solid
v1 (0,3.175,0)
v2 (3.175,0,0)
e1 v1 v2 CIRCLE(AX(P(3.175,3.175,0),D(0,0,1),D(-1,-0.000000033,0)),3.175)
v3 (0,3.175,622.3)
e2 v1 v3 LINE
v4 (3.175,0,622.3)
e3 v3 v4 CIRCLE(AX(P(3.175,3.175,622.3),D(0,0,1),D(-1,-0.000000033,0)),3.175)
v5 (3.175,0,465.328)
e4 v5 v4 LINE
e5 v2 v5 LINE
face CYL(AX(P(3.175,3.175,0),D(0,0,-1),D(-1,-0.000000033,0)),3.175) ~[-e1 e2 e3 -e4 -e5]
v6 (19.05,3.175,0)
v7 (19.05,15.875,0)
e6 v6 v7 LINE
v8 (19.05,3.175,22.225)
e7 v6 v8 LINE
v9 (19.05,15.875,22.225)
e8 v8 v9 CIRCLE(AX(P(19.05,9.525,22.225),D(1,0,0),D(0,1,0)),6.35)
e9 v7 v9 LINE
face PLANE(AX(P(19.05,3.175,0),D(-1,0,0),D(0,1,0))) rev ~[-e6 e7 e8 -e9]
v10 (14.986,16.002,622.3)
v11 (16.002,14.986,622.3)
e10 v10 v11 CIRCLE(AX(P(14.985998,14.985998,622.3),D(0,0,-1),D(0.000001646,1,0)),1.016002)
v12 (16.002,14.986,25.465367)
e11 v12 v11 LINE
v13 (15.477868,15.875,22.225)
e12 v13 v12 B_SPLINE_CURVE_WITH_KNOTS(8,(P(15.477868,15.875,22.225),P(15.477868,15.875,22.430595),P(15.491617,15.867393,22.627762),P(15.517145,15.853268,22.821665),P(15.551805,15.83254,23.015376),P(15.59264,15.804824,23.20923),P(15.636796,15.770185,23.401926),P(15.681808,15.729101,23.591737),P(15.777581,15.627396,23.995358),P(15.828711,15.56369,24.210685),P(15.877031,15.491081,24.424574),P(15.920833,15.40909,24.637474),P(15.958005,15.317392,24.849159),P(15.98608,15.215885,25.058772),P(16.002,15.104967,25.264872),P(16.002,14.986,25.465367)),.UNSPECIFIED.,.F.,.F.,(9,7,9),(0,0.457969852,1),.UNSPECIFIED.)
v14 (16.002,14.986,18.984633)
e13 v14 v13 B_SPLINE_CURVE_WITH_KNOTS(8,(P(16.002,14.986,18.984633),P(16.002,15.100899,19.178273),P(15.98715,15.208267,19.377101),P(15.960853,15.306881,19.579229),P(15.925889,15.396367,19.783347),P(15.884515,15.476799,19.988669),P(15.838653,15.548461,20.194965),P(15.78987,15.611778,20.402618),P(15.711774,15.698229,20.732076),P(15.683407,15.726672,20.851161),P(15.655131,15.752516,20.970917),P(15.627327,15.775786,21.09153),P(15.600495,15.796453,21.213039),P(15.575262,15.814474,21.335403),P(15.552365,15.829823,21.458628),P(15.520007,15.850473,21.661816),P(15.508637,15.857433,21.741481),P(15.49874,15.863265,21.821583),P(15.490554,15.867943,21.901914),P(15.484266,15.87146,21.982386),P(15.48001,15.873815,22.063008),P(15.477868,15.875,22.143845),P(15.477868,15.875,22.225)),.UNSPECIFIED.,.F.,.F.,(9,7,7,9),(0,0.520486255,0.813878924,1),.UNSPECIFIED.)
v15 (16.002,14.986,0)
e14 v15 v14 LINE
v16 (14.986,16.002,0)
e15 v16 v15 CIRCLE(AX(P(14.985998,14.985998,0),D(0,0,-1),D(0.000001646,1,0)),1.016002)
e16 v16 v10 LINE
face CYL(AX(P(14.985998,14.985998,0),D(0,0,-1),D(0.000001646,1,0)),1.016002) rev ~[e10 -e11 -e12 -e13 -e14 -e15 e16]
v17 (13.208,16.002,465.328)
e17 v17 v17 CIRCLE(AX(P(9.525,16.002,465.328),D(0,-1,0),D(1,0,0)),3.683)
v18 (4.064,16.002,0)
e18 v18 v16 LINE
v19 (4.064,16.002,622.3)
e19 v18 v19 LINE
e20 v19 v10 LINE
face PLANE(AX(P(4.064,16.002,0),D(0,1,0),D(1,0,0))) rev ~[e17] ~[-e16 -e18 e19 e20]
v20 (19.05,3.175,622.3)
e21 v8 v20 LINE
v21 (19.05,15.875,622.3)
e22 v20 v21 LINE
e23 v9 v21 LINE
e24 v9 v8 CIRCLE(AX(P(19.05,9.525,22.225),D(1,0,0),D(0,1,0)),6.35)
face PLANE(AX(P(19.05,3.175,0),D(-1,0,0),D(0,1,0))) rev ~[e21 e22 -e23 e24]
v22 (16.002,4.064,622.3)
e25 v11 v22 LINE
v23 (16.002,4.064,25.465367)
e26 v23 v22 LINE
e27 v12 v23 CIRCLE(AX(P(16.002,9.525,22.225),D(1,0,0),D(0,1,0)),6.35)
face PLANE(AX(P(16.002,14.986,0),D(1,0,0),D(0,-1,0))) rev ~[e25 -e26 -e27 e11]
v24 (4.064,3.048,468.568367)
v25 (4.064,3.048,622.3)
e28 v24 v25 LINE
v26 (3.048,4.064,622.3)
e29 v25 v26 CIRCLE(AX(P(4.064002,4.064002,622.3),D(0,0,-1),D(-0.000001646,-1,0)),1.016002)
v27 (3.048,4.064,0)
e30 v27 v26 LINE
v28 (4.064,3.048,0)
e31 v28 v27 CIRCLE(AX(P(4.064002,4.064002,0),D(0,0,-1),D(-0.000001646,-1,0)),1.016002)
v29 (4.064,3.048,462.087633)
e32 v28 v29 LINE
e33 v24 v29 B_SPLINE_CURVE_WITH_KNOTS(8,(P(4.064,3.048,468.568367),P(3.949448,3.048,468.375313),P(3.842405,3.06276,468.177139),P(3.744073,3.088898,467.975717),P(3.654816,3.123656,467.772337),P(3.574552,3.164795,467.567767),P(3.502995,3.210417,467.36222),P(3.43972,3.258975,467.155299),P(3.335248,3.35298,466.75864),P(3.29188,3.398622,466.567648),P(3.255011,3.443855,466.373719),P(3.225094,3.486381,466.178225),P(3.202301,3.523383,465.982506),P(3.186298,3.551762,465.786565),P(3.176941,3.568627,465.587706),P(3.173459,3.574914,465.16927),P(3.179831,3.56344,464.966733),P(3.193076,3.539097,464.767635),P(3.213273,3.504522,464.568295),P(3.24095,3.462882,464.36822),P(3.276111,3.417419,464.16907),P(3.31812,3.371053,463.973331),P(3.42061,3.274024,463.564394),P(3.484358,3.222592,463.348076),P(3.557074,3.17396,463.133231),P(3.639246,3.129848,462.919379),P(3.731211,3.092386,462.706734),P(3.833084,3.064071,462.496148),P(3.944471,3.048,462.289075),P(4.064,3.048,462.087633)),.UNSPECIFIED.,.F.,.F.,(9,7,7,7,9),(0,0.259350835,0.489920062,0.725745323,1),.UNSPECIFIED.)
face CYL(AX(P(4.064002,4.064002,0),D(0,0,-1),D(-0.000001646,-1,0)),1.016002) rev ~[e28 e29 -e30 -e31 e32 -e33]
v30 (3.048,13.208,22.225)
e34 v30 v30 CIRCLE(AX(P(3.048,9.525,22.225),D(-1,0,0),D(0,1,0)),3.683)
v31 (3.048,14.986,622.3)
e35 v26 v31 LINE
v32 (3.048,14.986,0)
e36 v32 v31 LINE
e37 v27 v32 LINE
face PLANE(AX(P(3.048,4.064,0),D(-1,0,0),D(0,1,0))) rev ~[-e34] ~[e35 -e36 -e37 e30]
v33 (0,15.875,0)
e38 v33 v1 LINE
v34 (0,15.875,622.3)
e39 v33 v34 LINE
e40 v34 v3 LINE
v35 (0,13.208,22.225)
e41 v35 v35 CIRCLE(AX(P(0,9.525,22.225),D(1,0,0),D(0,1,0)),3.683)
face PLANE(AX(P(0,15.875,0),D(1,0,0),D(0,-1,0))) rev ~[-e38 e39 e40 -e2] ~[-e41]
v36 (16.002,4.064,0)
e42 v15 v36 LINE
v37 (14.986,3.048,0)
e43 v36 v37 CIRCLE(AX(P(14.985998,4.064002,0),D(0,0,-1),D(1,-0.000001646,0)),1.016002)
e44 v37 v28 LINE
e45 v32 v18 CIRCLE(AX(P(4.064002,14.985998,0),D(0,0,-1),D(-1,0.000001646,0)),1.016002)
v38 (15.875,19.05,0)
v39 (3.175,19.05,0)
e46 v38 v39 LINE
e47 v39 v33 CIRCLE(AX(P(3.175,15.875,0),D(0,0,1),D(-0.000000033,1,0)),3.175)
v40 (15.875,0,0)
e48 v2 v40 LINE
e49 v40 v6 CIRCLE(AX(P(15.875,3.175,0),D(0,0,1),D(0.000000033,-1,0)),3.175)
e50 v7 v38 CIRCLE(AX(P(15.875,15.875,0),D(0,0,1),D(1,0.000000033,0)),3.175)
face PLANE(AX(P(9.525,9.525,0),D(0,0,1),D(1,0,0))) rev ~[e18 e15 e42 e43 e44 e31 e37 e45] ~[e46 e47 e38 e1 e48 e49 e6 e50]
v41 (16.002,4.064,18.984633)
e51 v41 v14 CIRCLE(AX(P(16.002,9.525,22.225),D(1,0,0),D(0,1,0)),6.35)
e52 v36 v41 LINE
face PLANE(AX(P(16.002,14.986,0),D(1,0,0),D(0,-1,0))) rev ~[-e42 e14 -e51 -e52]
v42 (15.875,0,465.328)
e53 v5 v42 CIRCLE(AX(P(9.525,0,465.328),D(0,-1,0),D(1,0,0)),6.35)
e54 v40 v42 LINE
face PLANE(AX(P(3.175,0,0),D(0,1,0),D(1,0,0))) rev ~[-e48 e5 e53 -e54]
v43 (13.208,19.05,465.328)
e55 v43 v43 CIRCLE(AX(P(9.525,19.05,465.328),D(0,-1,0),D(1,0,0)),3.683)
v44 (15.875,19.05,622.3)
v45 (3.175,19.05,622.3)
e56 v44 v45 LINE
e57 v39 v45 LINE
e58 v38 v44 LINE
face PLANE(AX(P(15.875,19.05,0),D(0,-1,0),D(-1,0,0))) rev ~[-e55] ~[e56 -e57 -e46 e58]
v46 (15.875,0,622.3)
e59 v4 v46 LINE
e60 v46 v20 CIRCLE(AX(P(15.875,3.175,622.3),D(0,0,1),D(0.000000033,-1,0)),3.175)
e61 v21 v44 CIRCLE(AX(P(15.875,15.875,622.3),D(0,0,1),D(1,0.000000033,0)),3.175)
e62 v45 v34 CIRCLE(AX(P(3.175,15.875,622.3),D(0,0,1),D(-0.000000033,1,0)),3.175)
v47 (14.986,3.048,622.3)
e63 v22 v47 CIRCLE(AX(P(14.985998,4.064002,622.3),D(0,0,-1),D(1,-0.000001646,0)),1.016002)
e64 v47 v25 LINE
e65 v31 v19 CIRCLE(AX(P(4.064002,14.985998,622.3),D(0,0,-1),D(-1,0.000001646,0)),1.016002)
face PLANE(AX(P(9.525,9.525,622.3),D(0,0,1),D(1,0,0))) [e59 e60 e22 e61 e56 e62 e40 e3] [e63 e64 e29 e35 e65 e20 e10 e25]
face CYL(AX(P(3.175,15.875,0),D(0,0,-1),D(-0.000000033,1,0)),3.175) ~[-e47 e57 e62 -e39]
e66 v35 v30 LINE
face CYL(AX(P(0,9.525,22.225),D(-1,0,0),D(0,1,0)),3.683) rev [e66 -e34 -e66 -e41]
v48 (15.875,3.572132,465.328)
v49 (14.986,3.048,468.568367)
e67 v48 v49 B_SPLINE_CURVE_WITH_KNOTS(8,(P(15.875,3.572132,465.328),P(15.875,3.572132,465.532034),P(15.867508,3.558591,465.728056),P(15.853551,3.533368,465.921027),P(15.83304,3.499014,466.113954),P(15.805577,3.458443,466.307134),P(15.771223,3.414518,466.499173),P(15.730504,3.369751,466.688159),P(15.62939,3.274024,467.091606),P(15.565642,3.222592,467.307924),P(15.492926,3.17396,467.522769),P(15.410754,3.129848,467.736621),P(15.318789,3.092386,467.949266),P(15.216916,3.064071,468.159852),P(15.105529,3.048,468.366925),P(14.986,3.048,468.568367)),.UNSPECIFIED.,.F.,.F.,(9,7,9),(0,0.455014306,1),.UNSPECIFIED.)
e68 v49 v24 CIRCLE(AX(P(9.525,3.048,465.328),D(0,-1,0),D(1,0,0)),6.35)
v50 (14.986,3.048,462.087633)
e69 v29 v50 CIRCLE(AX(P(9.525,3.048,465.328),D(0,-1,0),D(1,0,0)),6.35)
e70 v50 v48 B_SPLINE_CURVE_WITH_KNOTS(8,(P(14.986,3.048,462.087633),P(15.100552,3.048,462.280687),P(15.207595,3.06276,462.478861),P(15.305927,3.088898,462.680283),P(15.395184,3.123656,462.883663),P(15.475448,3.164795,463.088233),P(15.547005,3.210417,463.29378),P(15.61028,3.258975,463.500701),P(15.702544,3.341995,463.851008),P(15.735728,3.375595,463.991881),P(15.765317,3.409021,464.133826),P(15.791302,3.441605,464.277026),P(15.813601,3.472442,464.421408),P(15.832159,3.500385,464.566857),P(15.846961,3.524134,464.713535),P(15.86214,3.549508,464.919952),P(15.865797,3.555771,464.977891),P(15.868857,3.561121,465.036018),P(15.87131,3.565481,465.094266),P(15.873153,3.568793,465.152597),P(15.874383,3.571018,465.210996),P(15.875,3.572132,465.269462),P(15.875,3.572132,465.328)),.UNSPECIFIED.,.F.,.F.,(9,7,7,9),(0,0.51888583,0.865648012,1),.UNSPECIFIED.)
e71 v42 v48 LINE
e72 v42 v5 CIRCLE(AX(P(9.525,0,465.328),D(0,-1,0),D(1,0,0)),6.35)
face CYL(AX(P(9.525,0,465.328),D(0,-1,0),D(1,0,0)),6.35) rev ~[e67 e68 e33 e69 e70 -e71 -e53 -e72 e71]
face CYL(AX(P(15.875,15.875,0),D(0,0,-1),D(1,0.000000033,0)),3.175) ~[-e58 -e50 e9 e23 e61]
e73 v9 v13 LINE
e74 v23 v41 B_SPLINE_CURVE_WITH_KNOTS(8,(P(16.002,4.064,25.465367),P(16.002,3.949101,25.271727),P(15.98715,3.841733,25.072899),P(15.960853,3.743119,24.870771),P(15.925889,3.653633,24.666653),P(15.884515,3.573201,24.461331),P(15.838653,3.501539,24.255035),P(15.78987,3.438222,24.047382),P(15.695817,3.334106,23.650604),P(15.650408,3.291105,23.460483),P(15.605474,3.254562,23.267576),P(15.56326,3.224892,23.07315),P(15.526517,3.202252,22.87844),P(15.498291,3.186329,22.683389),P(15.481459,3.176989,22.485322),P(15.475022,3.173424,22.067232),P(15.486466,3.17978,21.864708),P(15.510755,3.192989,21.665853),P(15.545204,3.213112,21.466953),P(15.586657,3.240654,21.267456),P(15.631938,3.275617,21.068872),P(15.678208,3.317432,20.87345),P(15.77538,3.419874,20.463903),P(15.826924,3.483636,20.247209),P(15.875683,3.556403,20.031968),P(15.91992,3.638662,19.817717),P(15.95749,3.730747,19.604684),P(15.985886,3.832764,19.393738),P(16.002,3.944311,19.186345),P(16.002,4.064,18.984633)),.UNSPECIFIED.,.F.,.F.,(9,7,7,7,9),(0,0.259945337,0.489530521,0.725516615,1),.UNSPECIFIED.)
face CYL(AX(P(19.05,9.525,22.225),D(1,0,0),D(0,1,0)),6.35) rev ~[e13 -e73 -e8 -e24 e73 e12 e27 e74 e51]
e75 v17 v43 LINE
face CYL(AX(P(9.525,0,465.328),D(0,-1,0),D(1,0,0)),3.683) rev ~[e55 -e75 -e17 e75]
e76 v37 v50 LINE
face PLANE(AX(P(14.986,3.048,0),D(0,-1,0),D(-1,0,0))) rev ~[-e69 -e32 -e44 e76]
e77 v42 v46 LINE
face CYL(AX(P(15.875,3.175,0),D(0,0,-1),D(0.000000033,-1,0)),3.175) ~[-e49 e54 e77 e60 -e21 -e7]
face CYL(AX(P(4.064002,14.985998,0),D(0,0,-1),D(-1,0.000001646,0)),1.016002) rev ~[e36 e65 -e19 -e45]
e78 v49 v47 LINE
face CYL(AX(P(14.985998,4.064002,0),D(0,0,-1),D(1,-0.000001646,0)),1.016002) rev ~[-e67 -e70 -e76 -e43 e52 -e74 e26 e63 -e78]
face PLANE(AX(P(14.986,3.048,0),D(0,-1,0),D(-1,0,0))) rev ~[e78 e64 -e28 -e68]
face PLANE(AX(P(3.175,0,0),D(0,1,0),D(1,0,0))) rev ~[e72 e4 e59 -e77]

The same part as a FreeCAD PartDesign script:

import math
import FreeCAD as App
import Part
import Sketcher
from FreeCAD import Vector
Q = App.Units.Quantity

doc = App.newDocument("Part")
body = doc.addObject("PartDesign::Body", "Body")

sketch1 = body.newObject("Sketcher::SketchObject", "Sketch")
sketch1.AttachmentSupport = (doc.getObject("XY_Plane"), [""])
sketch1.MapMode = "FlatFace"
sketch1.addGeometry(Part.ArcOfCircle(Part.Circle(Vector(3.2, 3.2, 0), Vector(0, 0, 1), 3.2), math.radians(-180), math.radians(-90)), False)
sketch1.addGeometry(Part.LineSegment(Vector(3.2, 0, 0), Vector(15.9, 0, 0)), False)
sketch1.addGeometry(Part.ArcOfCircle(Part.Circle(Vector(15.9, 3.2, 0), Vector(0, 0, 1), 3.2), math.radians(-90), math.radians(0)), False)
sketch1.addGeometry(Part.LineSegment(Vector(19.1, 3.2, 0), Vector(19.1, 15.9, 0)), False)
sketch1.addGeometry(Part.ArcOfCircle(Part.Circle(Vector(15.9, 15.9, 0), Vector(0, 0, 1), 3.2), math.radians(0), math.radians(90)), False)
sketch1.addGeometry(Part.LineSegment(Vector(15.9, 19.1, 0), Vector(3.2, 19.1, 0)), False)
sketch1.addGeometry(Part.ArcOfCircle(Part.Circle(Vector(3.2, 15.9, 0), Vector(0, 0, 1), 3.2), math.radians(90), math.radians(180)), False)
sketch1.addGeometry(Part.LineSegment(Vector(0, 15.9, 0), Vector(0, 3.2, 0)), False)
sketch1.addGeometry(Part.LineSegment(Vector(3, 4.1, 0), Vector(3, 15, 0)), False)
sketch1.addGeometry(Part.ArcOfCircle(Part.Circle(Vector(4.1, 15, 0), Vector(0, 0, 1), 1), math.radians(90), math.radians(180)), False)
sketch1.addGeometry(Part.LineSegment(Vector(4.1, 16, 0), Vector(15, 16, 0)), False)
sketch1.addGeometry(Part.ArcOfCircle(Part.Circle(Vector(15, 15, 0), Vector(0, 0, 1), 1), math.radians(0), math.radians(90)), False)
sketch1.addGeometry(Part.LineSegment(Vector(16, 15, 0), Vector(16, 4.1, 0)), False)
sketch1.addGeometry(Part.ArcOfCircle(Part.Circle(Vector(15, 4.1, 0), Vector(0, 0, 1), 1), math.radians(-90), math.radians(0)), False)
sketch1.addGeometry(Part.LineSegment(Vector(15, 3, 0), Vector(4.1, 3, 0)), False)
sketch1.addGeometry(Part.ArcOfCircle(Part.Circle(Vector(4.1, 4.1, 0), Vector(0, 0, 1), 1), math.radians(-180), math.radians(-90)), False)
sketch1.addConstraint(Sketcher.Constraint("Tangent", 0, 2, 1, 1))
sketch1.addConstraint(Sketcher.Constraint("Tangent", 1, 2, 2, 1))
sketch1.addConstraint(Sketcher.Constraint("Tangent", 2, 2, 3, 1))
sketch1.addConstraint(Sketcher.Constraint("Tangent", 3, 2, 4, 1))
sketch1.addConstraint(Sketcher.Constraint("Tangent", 4, 2, 5, 1))
sketch1.addConstraint(Sketcher.Constraint("Tangent", 5, 2, 6, 1))
sketch1.addConstraint(Sketcher.Constraint("Tangent", 6, 2, 7, 1))
sketch1.addConstraint(Sketcher.Constraint("Tangent", 7, 2, 0, 1))
sketch1.addConstraint(Sketcher.Constraint("Tangent", 8, 2, 9, 2))
sketch1.addConstraint(Sketcher.Constraint("Tangent", 9, 1, 10, 1))
sketch1.addConstraint(Sketcher.Constraint("Tangent", 10, 2, 11, 2))
sketch1.addConstraint(Sketcher.Constraint("Tangent", 11, 1, 12, 1))
sketch1.addConstraint(Sketcher.Constraint("Tangent", 12, 2, 13, 2))
sketch1.addConstraint(Sketcher.Constraint("Tangent", 13, 1, 14, 1))
sketch1.addConstraint(Sketcher.Constraint("Tangent", 14, 2, 15, 2))
sketch1.addConstraint(Sketcher.Constraint("Tangent", 15, 1, 8, 1))
sketch1.addConstraint(Sketcher.Constraint("Horizontal", 1))
sketch1.addConstraint(Sketcher.Constraint("Vertical", 3))
sketch1.addConstraint(Sketcher.Constraint("Horizontal", 5))
sketch1.addConstraint(Sketcher.Constraint("Vertical", 7))
sketch1.addConstraint(Sketcher.Constraint("Vertical", 8))
sketch1.addConstraint(Sketcher.Constraint("Horizontal", 10))
sketch1.addConstraint(Sketcher.Constraint("Vertical", 12))
sketch1.addConstraint(Sketcher.Constraint("Horizontal", 14))
sketch1.addConstraint(Sketcher.Constraint("Equal", 0, 2))
sketch1.addConstraint(Sketcher.Constraint("Equal", 2, 4))
sketch1.addConstraint(Sketcher.Constraint("Equal", 4, 6))
sketch1.addConstraint(Sketcher.Constraint("Equal", 9, 11))
sketch1.addConstraint(Sketcher.Constraint("Equal", 11, 13))
sketch1.addConstraint(Sketcher.Constraint("Equal", 13, 15))
sketch1.addConstraint(Sketcher.Constraint("PointOnObject", 0, 2, -1))
sketch1.addConstraint(Sketcher.Constraint("PointOnObject", 6, 2, -2))
sketch1.addConstraint(Sketcher.Constraint("Equal", 5, 3))
sketch1.addConstraint(Sketcher.Constraint("Equal", 14, 8))
sketch1.addConstraint(Sketcher.Constraint("Radius", 9, Q("0.0400001 in")))
sketch1.addConstraint(Sketcher.Constraint("DistanceX", 1, 1, 1, 2, Q("0.5 in")))
sketch1.addConstraint(Sketcher.Constraint("Radius", 0, Q("0.125 in")))
sketch1.addConstraint(Sketcher.Constraint("DistanceX", 10, 1, 10, 2, Q("0.43 in")))
sketch1.addConstraint(Sketcher.Constraint("DistanceX", -1, 1, 9, 3, Q("0.1600001 in")))
sketch1.addConstraint(Sketcher.Constraint("DistanceY", -1, 1, 9, 3, Q("0.5899999 in")))
pad1 = body.newObject("PartDesign::Pad", "Pad")
pad1.Profile = sketch1
pad1.Length = Q("24.5 in")

sketch2 = body.newObject("Sketcher::SketchObject", "Sketch001")
sketch2.AttachmentSupport = (doc.getObject("YZ_Plane"), [""])
sketch2.MapMode = "FlatFace"
sketch2.addGeometry(Part.Circle(Vector(9.5, 22.2, 0), Vector(0, 0, 1), 3.7), False)
sketch2.addConstraint(Sketcher.Constraint("Diameter", 0, Q("0.29 in")))
sketch2.addConstraint(Sketcher.Constraint("DistanceX", -1, 1, 0, 3, Q("0.375 in")))
sketch2.addConstraint(Sketcher.Constraint("DistanceY", -1, 1, 0, 3, Q("0.875 in")))
pocket1 = body.newObject("PartDesign::Pocket", "Pocket")
pocket1.Profile = sketch2
pocket1.Length = Q("1.87 in")
pocket1.Reversed = True

sketch3 = body.newObject("Sketcher::SketchObject", "Sketch002")
sketch3.AttachmentSupport = (doc.getObject("YZ_Plane"), [""])
sketch3.MapMode = "FlatFace"
sketch3.AttachmentOffset = App.Placement(Vector(0, 0, 0.75 * 25.4), App.Rotation())
sketch3.addGeometry(Part.Circle(Vector(10, 22, 0), Vector(0, 0, 1), 6), False)
sketch3.addConstraint(Sketcher.Constraint("Diameter", 0, Q("0.5 in")))
sketch3.addConstraint(Sketcher.Constraint("DistanceX", -1, 1, 0, 3, Q("0.375 in")))
sketch3.addConstraint(Sketcher.Constraint("DistanceY", -1, 1, 0, 3, Q("0.875 in")))
pocket2 = body.newObject("PartDesign::Pocket", "Pocket001")
pocket2.Profile = sketch3
pocket2.Length = Q("0.16 in")

sketch4 = body.newObject("Sketcher::SketchObject", "Sketch003")
sketch4.AttachmentSupport = (doc.getObject("XZ_Plane"), [""])
sketch4.MapMode = "FlatFace"
sketch4.addGeometry(Part.Circle(Vector(9.5, 465.3, 0), Vector(0, 0, 1), 3.7), False)
sketch4.addConstraint(Sketcher.Constraint("Diameter", 0, Q("0.29 in")))
sketch4.addConstraint(Sketcher.Constraint("DistanceY", -1, 1, 0, 3, Q("18.32 in")))
sketch4.addConstraint(Sketcher.Constraint("DistanceX", -1, 1, 0, 3, Q("0.375 in")))
pocket3 = body.newObject("PartDesign::Pocket", "Pocket002")
pocket3.Profile = sketch4
pocket3.Length = Q("1 in")

sketch5 = body.newObject("Sketcher::SketchObject", "Sketch004")
sketch5.AttachmentSupport = (doc.getObject("XZ_Plane"), [""])
sketch5.MapMode = "FlatFace"
sketch5.addGeometry(Part.Circle(Vector(10, 465, 0), Vector(0, 0, 1), 6), False)
sketch5.addConstraint(Sketcher.Constraint("Diameter", 0, Q("0.5 in")))
sketch5.addConstraint(Sketcher.Constraint("DistanceY", -1, 1, 0, 3, Q("18.32 in")))
sketch5.addConstraint(Sketcher.Constraint("DistanceX", -1, 1, 0, 3, Q("0.375 in")))
pocket4 = body.newObject("PartDesign::Pocket", "Pocket003")
pocket4.Profile = sketch5
pocket4.Length = Q("0.34 in")

doc.recompute()
